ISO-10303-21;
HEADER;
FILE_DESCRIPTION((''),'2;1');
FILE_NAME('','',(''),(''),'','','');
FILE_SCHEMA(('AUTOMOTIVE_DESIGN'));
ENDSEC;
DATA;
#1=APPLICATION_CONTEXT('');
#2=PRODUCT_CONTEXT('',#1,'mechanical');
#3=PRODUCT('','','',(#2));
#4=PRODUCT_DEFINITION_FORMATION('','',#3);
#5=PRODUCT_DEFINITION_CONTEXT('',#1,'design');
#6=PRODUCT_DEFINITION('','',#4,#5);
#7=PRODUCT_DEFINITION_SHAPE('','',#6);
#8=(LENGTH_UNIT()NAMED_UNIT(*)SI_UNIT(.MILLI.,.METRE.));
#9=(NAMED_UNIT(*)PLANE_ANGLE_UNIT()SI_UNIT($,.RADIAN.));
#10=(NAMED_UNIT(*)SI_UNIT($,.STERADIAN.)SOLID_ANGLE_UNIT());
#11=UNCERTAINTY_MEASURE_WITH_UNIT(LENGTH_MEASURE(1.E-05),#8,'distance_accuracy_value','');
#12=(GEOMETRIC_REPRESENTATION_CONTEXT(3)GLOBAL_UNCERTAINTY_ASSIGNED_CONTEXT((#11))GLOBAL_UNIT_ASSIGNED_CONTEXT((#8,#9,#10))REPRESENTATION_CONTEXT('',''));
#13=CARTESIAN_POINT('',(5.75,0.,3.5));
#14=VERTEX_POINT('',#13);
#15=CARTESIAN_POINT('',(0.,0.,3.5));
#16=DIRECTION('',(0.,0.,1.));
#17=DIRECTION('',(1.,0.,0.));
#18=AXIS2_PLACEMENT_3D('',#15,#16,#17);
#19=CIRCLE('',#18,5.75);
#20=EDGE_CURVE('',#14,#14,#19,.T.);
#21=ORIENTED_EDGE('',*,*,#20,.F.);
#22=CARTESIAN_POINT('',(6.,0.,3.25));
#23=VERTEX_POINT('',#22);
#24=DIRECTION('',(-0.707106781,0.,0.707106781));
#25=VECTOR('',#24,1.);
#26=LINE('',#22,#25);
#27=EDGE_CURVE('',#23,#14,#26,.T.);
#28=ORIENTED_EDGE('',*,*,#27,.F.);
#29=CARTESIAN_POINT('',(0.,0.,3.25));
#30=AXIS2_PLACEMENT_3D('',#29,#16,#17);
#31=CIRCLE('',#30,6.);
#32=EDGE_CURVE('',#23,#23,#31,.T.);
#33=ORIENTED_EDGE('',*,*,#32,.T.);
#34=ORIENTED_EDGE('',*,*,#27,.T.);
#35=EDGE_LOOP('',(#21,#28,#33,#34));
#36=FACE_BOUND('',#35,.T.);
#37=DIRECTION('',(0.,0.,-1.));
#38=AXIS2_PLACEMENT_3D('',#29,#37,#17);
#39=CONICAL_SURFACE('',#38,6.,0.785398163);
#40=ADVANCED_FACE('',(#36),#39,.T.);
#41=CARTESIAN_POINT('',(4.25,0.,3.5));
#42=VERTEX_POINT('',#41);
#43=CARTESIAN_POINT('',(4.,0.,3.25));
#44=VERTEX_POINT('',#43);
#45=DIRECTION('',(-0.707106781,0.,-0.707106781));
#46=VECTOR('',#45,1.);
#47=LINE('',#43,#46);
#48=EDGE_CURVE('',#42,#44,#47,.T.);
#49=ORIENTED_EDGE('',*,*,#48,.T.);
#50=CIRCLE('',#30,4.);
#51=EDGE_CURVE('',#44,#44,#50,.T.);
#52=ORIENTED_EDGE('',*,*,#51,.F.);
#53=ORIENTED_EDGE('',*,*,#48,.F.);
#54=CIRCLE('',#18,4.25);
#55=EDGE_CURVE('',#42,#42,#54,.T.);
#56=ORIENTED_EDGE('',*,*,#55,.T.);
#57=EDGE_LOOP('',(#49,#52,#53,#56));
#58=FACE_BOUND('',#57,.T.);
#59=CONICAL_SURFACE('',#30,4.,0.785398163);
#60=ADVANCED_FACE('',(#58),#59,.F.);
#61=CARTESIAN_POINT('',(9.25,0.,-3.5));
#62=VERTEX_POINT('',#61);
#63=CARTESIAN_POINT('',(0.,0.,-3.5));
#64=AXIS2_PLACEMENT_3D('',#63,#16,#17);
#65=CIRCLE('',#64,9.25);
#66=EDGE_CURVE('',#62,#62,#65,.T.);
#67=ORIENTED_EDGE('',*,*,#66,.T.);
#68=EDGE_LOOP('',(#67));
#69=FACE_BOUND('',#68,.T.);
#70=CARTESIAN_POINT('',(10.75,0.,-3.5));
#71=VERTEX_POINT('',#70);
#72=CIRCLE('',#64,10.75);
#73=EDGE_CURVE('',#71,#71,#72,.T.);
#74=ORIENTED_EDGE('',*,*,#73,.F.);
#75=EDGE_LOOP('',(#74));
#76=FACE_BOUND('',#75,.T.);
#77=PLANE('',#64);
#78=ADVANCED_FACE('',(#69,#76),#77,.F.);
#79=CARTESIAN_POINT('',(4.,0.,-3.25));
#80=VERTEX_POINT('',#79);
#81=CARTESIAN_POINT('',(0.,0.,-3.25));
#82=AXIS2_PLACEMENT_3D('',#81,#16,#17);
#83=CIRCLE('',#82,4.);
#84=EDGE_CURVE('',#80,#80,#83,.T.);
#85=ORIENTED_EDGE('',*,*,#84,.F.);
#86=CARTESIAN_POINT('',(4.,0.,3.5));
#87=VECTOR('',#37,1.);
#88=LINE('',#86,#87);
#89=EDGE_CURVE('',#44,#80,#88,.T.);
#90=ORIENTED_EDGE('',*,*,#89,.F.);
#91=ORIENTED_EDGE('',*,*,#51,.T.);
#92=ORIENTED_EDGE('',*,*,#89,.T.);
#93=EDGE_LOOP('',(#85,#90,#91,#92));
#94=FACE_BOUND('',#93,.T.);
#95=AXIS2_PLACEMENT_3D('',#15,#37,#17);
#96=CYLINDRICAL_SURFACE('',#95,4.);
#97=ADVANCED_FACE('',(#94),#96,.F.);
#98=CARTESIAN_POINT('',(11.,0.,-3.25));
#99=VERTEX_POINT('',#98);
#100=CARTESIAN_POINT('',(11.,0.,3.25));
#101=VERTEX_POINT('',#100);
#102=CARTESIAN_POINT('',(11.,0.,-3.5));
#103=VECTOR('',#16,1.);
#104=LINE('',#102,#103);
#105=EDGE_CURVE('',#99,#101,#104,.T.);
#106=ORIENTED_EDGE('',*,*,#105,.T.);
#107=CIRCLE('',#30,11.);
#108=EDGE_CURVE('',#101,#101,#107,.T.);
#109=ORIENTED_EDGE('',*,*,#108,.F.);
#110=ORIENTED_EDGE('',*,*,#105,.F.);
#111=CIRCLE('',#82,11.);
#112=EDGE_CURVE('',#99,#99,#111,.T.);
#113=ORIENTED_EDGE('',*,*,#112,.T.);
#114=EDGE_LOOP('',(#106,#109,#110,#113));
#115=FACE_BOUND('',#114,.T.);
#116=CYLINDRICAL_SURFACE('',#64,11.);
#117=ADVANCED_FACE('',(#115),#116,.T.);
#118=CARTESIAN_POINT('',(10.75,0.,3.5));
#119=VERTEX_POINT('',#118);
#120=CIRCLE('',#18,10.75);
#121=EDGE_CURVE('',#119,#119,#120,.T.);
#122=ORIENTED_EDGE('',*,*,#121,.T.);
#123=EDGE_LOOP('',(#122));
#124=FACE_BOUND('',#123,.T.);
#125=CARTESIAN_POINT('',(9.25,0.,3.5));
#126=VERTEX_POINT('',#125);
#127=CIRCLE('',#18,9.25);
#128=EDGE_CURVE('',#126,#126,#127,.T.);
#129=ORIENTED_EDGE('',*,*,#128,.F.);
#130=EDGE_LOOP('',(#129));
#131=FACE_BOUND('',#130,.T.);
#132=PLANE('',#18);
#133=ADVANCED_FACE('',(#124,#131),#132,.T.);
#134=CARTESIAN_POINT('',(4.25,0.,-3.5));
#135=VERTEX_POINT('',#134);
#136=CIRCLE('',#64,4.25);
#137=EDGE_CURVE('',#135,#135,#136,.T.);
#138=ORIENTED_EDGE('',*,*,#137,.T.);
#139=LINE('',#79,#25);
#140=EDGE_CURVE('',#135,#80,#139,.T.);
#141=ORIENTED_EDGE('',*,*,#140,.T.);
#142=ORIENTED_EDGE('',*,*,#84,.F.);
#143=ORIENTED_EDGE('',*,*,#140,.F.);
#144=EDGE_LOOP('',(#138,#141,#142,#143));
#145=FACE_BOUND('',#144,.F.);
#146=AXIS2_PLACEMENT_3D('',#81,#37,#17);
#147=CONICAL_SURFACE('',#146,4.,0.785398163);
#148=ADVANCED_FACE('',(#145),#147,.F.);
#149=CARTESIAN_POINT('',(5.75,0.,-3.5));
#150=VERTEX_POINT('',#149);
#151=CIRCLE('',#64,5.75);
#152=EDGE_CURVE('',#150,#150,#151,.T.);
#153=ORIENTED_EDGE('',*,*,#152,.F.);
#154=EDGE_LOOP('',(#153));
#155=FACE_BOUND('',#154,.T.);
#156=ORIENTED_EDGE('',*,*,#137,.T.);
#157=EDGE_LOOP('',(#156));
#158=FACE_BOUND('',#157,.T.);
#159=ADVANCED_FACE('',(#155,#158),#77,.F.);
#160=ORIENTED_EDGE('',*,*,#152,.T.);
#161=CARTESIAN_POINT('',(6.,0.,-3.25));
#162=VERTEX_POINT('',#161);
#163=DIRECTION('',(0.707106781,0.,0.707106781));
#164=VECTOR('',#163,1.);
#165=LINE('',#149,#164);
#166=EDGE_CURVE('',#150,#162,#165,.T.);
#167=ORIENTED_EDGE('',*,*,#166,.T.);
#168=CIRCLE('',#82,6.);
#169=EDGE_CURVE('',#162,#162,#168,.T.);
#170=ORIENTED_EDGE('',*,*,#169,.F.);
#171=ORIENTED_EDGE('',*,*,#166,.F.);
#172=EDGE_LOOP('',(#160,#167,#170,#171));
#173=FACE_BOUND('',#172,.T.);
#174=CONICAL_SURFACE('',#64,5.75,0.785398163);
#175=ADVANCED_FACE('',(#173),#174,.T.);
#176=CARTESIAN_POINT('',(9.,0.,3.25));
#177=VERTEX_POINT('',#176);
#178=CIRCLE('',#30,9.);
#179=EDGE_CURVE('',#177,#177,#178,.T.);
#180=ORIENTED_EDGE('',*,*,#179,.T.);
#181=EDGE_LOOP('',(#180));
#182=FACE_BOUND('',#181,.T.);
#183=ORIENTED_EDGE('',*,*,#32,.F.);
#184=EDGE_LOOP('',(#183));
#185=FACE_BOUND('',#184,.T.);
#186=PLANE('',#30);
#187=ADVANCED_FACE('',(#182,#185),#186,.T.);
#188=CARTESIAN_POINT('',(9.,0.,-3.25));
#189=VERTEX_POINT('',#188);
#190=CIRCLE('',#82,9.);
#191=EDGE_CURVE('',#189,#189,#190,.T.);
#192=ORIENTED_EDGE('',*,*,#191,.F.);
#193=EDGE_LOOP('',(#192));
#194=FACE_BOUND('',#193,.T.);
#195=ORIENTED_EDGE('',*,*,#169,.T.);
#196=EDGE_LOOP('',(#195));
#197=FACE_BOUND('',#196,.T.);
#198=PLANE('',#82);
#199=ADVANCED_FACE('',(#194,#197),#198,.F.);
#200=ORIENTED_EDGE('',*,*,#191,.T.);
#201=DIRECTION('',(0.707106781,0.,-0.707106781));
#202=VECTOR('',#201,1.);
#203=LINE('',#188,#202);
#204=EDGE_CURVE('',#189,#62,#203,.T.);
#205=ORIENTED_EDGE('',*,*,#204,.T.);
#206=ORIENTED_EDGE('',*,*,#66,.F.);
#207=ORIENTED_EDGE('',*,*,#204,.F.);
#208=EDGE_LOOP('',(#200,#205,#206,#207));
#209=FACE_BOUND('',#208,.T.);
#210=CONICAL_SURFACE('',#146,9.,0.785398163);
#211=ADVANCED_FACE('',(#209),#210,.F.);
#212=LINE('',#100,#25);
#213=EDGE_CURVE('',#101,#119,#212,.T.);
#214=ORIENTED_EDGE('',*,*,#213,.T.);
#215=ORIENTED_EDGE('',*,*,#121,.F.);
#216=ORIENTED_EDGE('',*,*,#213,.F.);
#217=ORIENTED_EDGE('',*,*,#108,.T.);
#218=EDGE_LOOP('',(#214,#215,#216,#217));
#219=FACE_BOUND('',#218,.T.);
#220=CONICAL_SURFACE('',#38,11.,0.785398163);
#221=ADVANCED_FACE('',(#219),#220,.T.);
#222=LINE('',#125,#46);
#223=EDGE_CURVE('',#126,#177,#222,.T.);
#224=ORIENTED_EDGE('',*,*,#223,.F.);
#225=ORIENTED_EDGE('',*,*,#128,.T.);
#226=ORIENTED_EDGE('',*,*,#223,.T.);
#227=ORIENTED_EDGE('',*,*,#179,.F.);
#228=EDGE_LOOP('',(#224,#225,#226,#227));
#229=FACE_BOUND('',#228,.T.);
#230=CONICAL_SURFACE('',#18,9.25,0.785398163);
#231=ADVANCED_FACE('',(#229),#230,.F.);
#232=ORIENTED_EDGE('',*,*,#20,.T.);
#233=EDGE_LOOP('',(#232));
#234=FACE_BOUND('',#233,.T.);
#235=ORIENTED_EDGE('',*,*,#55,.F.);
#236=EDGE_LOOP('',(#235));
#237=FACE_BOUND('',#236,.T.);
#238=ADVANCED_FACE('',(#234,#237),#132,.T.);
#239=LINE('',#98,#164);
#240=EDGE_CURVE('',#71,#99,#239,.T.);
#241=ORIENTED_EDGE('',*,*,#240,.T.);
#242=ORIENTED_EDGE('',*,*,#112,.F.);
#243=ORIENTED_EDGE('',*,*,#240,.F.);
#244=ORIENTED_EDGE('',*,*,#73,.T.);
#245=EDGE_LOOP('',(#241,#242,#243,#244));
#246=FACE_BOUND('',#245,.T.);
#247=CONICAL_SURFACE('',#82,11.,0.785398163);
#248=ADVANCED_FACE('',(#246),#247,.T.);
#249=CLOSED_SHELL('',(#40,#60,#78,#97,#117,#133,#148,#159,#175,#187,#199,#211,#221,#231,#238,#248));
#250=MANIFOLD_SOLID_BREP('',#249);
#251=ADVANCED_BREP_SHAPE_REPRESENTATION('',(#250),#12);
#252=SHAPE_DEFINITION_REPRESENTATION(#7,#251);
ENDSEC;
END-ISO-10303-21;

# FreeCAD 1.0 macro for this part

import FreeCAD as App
import Part
import Sketcher

V = App.Vector


def edges_at(feature, points):
    """Names of the edges that pass closest to the given points."""
    edges = feature.Shape.Edges
    near = lambda p: min(range(len(edges)), key=lambda i: edges[i].distToShape(Part.Vertex(*p))[0])
    return sorted({f"Edge{near(p) + 1}" for p in points})


def add_polygon(sketch, points):
    """Adds a closed chain of lines whose ends are joined by coincident constraints."""
    first, n = sketch.GeometryCount, len(points)
    for a, b in zip(points, points[1:] + points[:1]):
        sketch.addGeometry(Part.LineSegment(App.Vector(*a, 0), App.Vector(*b, 0)), False)
    for i in range(n):
        sketch.addConstraint(Sketcher.Constraint("Coincident", first + i, 2, first + (i + 1) % n, 1))

doc = App.newDocument("Part")
body = doc.addObject("PartDesign::Body", "Body")

sketch1 = doc.addObject("Sketcher::SketchObject", "Sketch")
body.addObject(sketch1)
sketch1.AttachmentSupport = (doc.XZ_Plane, [""])
sketch1.MapMode = "FlatFace"
add_polygon(sketch1, [(4, -3.5), (5.75, -3.5), (6, -3.25), (9, -3.25), (9.25, -3.5), (11, -3.5), (11, 3.5), (9.25, 3.5), (9, 3.25), (6, 3.25), (5.75, 3.5), (4, 3.5)])
sketch1.addConstraint([
    Sketcher.Constraint("Horizontal", 0),
    Sketcher.Constraint("Horizontal", 2),
    Sketcher.Constraint("Horizontal", 4),
    Sketcher.Constraint("Vertical", 5),
    Sketcher.Constraint("Horizontal", 6),
    Sketcher.Constraint("Horizontal", 8),
    Sketcher.Constraint("Horizontal", 10),
    Sketcher.Constraint("Vertical", 11),
    Sketcher.Constraint("Symmetric", 3, 2, 6, 2, -1),
    Sketcher.Constraint("Symmetric", 2, 2, 7, 2, -1),
    Sketcher.Constraint("Symmetric", 0, 2, 9, 2, -1),
    Sketcher.Constraint("Perpendicular", 1, 3),
    Sketcher.Constraint("Perpendicular", 3, 7),
    Sketcher.Constraint("Perpendicular", 7, 9),
    Sketcher.Constraint("Horizontal", 0, 2, 3, 2),
    Sketcher.Constraint("Equal", 0, 4),
    Sketcher.Constraint("DistanceX", 2, 1, 2, 2, 3.0),
    Sketcher.Constraint("DistanceY", 5, 1, 5, 2, 7.0),
    Sketcher.Constraint("DistanceX", -1, 1, 1, 2, 6.0),
    Sketcher.Constraint("DistanceX", -1, 1, 4, 2, 11.0),
    Sketcher.Constraint("DistanceX", 0, 1, 0, 2, 1.75),
])
revolution = doc.addObject("PartDesign::Revolution", "Revolution")
body.addObject(revolution)
revolution.Profile = sketch1
revolution.ReferenceAxis = (sketch1, ["V_Axis"])
revolution.Angle = 360
doc.recompute()

chamfer = doc.addObject("PartDesign::Chamfer", "Chamfer")
body.addObject(chamfer)
chamfer.Base = (revolution, edges_at(revolution, [
    (-4, 0, -3.5),
    (-4, 0, 3.5),
    (-11, 0, -3.5),
    (-11, 0, 3.5),
]))
chamfer.Size = 0.25

doc.recompute()
